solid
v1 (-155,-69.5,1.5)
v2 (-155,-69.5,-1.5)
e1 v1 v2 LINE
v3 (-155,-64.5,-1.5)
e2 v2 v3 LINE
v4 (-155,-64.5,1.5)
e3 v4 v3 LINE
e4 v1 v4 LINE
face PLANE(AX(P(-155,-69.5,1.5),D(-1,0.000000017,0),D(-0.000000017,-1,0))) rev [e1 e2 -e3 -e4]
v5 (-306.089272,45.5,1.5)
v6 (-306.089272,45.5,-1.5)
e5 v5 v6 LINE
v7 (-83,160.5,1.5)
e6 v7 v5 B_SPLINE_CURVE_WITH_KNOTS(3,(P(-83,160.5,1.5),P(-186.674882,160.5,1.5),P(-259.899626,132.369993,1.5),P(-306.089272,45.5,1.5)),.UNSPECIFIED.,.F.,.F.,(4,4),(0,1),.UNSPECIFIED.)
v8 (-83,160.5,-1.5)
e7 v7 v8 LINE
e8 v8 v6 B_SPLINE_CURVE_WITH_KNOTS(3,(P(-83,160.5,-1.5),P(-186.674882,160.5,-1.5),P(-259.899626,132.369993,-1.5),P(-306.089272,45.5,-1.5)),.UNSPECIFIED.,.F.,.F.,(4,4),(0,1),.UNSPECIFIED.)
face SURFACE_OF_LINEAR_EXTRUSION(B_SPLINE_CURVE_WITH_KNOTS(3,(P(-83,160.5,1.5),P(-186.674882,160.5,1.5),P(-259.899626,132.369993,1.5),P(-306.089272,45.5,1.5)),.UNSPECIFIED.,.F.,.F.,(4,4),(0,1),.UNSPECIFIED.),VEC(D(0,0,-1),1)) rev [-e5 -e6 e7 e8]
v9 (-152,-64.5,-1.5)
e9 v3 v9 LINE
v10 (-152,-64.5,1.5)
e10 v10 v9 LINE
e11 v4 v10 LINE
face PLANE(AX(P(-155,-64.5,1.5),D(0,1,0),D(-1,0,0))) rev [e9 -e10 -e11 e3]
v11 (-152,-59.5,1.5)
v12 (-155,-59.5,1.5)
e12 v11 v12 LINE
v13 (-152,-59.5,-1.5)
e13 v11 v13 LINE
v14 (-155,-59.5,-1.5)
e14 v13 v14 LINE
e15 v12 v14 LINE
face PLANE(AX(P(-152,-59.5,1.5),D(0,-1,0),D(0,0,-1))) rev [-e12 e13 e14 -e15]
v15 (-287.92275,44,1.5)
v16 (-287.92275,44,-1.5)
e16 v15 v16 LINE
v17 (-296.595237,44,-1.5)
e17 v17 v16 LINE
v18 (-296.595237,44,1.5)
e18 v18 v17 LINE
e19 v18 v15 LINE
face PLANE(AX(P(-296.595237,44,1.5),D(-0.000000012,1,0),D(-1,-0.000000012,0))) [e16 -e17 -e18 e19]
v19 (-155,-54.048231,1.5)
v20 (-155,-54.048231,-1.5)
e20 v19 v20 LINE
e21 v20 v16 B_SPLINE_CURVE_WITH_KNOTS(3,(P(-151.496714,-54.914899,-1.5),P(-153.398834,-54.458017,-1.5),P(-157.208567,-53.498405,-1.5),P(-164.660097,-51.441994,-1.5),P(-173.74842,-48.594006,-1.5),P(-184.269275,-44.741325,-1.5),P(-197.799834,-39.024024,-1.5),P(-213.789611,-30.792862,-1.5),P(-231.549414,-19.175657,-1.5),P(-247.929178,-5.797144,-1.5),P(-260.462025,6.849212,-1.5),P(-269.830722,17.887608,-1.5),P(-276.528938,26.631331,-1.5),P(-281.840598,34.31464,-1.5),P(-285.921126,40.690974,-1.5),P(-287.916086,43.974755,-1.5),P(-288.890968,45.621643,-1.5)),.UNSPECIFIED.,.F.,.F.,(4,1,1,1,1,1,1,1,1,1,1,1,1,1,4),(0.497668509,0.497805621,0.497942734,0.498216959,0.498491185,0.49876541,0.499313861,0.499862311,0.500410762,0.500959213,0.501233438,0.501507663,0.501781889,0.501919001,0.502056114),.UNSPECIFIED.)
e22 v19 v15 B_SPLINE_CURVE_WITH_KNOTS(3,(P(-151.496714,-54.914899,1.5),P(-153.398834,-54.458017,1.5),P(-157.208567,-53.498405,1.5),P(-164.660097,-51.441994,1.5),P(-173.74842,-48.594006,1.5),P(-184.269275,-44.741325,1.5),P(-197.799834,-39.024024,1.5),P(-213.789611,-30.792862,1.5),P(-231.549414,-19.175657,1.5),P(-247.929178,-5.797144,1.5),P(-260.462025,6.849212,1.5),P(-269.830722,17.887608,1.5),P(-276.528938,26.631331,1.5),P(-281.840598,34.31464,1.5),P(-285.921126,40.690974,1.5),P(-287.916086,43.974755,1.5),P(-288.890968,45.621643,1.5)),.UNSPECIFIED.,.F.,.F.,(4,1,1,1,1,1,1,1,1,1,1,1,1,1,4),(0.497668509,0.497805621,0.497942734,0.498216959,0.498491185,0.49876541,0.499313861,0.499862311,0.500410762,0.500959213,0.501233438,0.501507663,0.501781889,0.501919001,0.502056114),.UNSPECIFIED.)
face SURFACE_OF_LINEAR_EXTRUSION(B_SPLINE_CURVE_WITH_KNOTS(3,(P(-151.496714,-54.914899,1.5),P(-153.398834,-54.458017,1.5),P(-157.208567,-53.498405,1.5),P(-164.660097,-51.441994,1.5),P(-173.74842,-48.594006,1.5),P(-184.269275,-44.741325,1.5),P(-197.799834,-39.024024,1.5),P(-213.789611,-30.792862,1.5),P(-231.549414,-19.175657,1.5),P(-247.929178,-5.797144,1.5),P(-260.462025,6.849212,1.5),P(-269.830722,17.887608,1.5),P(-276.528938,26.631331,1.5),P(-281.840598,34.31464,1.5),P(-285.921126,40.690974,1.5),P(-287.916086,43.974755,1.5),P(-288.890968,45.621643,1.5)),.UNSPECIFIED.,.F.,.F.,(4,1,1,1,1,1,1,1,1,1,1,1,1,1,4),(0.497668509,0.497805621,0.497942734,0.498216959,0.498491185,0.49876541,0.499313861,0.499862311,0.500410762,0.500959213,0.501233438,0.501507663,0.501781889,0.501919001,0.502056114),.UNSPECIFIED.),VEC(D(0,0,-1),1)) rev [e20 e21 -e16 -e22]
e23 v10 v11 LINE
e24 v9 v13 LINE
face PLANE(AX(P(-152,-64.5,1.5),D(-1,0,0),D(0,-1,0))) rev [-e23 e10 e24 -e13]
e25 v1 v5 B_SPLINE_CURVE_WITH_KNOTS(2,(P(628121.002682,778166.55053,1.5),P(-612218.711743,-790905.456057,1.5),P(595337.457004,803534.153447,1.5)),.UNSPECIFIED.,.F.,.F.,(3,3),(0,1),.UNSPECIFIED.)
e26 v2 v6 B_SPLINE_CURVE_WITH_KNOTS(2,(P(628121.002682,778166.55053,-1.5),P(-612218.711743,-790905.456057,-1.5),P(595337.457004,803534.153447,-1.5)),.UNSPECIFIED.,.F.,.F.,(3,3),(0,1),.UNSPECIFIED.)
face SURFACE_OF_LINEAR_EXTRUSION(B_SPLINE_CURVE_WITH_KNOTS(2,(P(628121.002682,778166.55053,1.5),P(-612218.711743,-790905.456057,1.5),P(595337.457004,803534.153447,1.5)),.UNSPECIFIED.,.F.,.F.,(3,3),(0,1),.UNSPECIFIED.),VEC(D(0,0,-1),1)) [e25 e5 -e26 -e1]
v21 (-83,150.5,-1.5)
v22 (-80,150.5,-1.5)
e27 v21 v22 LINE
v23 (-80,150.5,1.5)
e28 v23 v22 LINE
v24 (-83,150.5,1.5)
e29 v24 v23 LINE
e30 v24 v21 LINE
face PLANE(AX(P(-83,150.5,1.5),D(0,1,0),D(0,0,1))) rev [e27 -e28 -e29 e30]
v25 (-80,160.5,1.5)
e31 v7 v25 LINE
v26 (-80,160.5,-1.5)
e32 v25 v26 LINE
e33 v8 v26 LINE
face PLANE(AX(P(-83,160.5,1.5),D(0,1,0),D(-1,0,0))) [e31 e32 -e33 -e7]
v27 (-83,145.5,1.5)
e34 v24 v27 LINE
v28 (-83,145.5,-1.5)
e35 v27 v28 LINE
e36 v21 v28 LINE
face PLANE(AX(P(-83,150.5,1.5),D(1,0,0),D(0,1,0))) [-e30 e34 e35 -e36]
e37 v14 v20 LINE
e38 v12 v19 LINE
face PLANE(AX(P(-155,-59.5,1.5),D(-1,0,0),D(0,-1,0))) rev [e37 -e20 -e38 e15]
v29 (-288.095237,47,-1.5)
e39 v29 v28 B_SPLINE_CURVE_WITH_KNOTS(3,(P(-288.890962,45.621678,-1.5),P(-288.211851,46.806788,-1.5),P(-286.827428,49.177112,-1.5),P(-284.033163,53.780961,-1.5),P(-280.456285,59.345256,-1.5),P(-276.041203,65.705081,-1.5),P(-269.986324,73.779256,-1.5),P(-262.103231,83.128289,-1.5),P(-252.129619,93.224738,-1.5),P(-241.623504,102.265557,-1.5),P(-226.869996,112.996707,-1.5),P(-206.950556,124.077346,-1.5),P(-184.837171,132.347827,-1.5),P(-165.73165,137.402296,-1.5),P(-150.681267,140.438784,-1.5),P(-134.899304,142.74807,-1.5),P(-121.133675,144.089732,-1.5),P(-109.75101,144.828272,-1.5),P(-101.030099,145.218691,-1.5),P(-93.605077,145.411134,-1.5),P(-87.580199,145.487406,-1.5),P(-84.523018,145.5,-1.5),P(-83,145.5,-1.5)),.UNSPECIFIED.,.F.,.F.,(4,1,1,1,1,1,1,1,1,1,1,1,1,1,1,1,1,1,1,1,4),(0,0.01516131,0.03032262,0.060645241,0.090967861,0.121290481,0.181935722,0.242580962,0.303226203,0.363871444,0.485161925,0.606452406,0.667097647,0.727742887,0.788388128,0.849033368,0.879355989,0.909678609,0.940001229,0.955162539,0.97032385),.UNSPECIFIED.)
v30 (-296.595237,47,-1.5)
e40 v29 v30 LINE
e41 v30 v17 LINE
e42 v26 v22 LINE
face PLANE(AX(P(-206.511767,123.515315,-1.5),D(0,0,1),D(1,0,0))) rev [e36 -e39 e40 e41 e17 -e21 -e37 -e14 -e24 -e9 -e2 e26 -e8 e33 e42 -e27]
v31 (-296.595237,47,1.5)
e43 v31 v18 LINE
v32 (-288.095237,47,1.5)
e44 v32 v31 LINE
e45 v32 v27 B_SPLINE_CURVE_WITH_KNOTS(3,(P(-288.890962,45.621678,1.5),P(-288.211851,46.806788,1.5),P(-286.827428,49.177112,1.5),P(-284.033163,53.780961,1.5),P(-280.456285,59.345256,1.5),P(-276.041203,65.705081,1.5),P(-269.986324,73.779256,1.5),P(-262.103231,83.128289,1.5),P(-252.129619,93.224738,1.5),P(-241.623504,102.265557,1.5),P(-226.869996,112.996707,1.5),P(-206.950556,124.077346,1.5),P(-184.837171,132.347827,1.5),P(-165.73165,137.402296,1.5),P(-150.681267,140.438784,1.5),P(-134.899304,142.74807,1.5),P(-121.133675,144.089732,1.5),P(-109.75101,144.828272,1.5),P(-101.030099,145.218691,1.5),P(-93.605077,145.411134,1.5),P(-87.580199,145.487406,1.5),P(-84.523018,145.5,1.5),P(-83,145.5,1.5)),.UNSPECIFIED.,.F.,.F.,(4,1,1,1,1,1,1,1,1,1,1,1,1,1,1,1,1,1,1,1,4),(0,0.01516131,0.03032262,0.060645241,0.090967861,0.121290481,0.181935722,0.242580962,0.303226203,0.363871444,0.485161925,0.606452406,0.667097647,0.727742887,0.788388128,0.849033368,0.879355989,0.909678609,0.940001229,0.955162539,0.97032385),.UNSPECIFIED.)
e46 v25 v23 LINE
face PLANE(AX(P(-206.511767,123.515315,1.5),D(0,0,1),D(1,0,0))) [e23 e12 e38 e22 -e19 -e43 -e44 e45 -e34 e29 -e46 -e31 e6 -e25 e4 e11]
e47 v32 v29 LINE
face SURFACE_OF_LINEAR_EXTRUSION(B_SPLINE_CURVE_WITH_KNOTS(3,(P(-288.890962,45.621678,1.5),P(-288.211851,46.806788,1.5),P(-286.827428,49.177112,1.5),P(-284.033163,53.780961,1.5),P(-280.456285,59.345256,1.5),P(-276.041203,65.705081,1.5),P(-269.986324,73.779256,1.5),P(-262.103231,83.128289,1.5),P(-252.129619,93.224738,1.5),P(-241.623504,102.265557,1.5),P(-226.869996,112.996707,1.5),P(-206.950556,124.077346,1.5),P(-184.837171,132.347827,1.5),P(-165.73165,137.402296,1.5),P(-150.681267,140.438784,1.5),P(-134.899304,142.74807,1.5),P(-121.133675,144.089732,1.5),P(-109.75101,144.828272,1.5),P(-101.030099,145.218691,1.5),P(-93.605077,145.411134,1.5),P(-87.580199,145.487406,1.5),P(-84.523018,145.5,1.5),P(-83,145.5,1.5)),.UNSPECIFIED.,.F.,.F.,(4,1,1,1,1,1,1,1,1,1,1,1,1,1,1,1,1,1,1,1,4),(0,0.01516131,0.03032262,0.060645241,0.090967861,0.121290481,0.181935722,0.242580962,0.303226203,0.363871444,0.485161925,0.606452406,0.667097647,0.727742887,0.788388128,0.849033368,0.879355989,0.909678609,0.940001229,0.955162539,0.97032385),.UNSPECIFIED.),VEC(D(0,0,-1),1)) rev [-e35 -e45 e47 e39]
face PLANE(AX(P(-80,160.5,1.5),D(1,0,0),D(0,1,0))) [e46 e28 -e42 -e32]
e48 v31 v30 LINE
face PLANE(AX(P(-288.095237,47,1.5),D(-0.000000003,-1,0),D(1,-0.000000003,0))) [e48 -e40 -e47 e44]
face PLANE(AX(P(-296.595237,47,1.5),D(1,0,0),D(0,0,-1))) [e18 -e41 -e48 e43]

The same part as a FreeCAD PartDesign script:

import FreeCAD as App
import Part
import Sketcher

V = App.Vector

doc = App.newDocument("Part")
body = doc.addObject("PartDesign::Body", "Body")

# Sketch on XY plane
sketch1 = doc.addObject("Sketcher::SketchObject", "Sketch")
body.addObject(sketch1)
sketch1.AttachmentSupport = (doc.XY_Plane, [""])
sketch1.MapMode = "FlatFace"
sketch1.addGeometry(Part.LineSegment(V(-83, 150.5, 0), V(-80, 150.5, 0)), False)
sketch1.addGeometry(Part.LineSegment(V(-80, 150.5, 0), V(-80, 160.5, 0)), False)
sketch1.addGeometry(Part.LineSegment(V(-80, 160.5, 0), V(-83, 160.5, 0)), False)
sketch1.addGeometry(Part.BSplineCurve([V(-83, 160.5, 0), V(-186.674882, 160.5, 0), V(-259.899626, 132.369993, 0), V(-306.089272, 45.5, 0)], [4, 4], [0, 1], False, 3, [1, 1, 1, 1], False), False)
sketch1.addGeometry(Part.BSplineCurve([V(-155, -69.5, 0), V(-256.223954, -45.186387, 0), V(-306.089272, 45.5, 0)], [3, 3], [0, 1], False, 2, [1, 1, 1], False), False)
sketch1.addGeometry(Part.LineSegment(V(-155, -69.5, 0), V(-155, -64.5, 0)), False)
sketch1.addGeometry(Part.LineSegment(V(-155, -64.5, 0), V(-152, -64.5, 0)), False)
sketch1.addGeometry(Part.LineSegment(V(-152, -64.5, 0), V(-152, -59.5, 0)), False)
sketch1.addGeometry(Part.LineSegment(V(-152, -59.5, 0), V(-155, -59.5, 0)), False)
sketch1.addGeometry(Part.LineSegment(V(-155, -59.5, 0), V(-155, -54.048231, 0)), False)
sketch1.addGeometry(Part.BSplineCurve([V(-155, -54.048231, 0), V(-155.731391, -53.861953, 0), V(-158.353006, -53.18251, 0), V(-164.66008, -51.441937, 0), V(-173.748401, -48.593951, 0), V(-184.269255, -44.741273, 0), V(-197.799811, -39.023974, 0), V(-213.789586, -30.792816, 0), V(-231.549386, -19.175616, 0), V(-247.929148, -5.797108, 0), V(-260.461994, 6.849244, 0), V(-269.83069, 17.887636, 0), V(-276.528905, 26.631356, 0), V(-281.840566, 34.314662, 0), V(-285.585789, 40.16704, 0), V(-287.259112, 42.89802, 0), V(-287.92275, 44, 0)], [4, 1, 1, 1, 1, 1, 1, 1, 1, 1, 1, 1, 1, 1, 4], [0.497752743, 0.497805621, 0.497942734, 0.498216959, 0.498491185, 0.49876541, 0.499313861, 0.499862311, 0.500410762, 0.500959213, 0.501233438, 0.501507663, 0.501781889, 0.501919001, 0.502011047], False, 3, [1, 1, 1, 1, 1, 1, 1, 1, 1, 1, 1, 1, 1, 1, 1, 1, 1], False), False)
sketch1.addGeometry(Part.LineSegment(V(-287.92275, 44, 0), V(-296.595237, 44, 0)), False)
sketch1.addGeometry(Part.LineSegment(V(-296.595237, 44, 0), V(-296.595237, 47, 0)), False)
sketch1.addGeometry(Part.LineSegment(V(-296.595237, 47, 0), V(-288.095237, 47, 0)), False)
sketch1.addGeometry(Part.BSplineCurve([V(-288.095237, 47, 0), V(-287.674256, 47.723773, 0), V(-286.556392, 49.623616, 0), V(-284.033138, 53.780946, 0), V(-280.456261, 59.34524, 0), V(-276.04118, 65.705066, 0), V(-269.986302, 73.779241, 0), V(-262.103211, 83.128274, 0), V(-252.1296, 93.224723, 0), V(-241.623488, 102.265543, 0), V(-226.869982, 112.996694, 0), V(-206.950544, 124.077334, 0), V(-184.837162, 132.347817, 0), V(-165.731643, 137.402288, 0), V(-150.681262, 140.438777, 0), V(-134.8993, 142.748064, 0), V(-121.133672, 144.089728, 0), V(-109.751008, 144.828269, 0), V(-101.030098, 145.21869, 0), V(-93.605076, 145.411133, 0), V(-87.580198, 145.487406, 0), V(-84.523017, 145.5, 0), V(-83, 145.5, 0)], [4, 1, 1, 1, 1, 1, 1, 1, 1, 1, 1, 1, 1, 1, 1, 1, 1, 1, 1, 1, 4], [0.005881872, 0.01516131, 0.03032262, 0.060645241, 0.090967861, 0.121290481, 0.181935722, 0.242580962, 0.303226203, 0.363871444, 0.485161925, 0.606452406, 0.667097647, 0.727742887, 0.788388128, 0.849033368, 0.879355989, 0.909678609, 0.940001229, 0.955162539, 0.97032385], False, 3, [1, 1, 1, 1, 1, 1, 1, 1, 1, 1, 1, 1, 1, 1, 1, 1, 1, 1, 1, 1, 1, 1, 1], False), False)
sketch1.addGeometry(Part.LineSegment(V(-83, 145.5, 0), V(-83, 150.5, 0)), False)
sketch1.addConstraint(Sketcher.Constraint("Block", 3))
sketch1.addConstraint(Sketcher.Constraint("Block", 4))
sketch1.addConstraint(Sketcher.Constraint("Block", 10))
sketch1.addConstraint(Sketcher.Constraint("Block", 14))
sketch1.addConstraint(Sketcher.Constraint("Coincident", 0, 2, 1, 1))
sketch1.addConstraint(Sketcher.Constraint("Coincident", 1, 2, 2, 1))
sketch1.addConstraint(Sketcher.Constraint("Coincident", 2, 2, 3, 1))
sketch1.addConstraint(Sketcher.Constraint("Coincident", 4, 1, 5, 1))
sketch1.addConstraint(Sketcher.Constraint("Coincident", 5, 2, 6, 1))
sketch1.addConstraint(Sketcher.Constraint("Coincident", 6, 2, 7, 1))
sketch1.addConstraint(Sketcher.Constraint("Coincident", 7, 2, 8, 1))
sketch1.addConstraint(Sketcher.Constraint("Coincident", 8, 2, 9, 1))
sketch1.addConstraint(Sketcher.Constraint("Coincident", 9, 2, 10, 1))
sketch1.addConstraint(Sketcher.Constraint("Coincident", 10, 2, 11, 1))
sketch1.addConstraint(Sketcher.Constraint("Coincident", 11, 2, 12, 1))
sketch1.addConstraint(Sketcher.Constraint("Coincident", 12, 2, 13, 1))
sketch1.addConstraint(Sketcher.Constraint("Coincident", 13, 2, 14, 1))
sketch1.addConstraint(Sketcher.Constraint("Coincident", 14, 2, 15, 1))
sketch1.addConstraint(Sketcher.Constraint("Coincident", 15, 2, 0, 1))
sketch1.addConstraint(Sketcher.Constraint("Horizontal", 0))
sketch1.addConstraint(Sketcher.Constraint("Vertical", 1))
sketch1.addConstraint(Sketcher.Constraint("Horizontal", 2))
sketch1.addConstraint(Sketcher.Constraint("Vertical", 5))
sketch1.addConstraint(Sketcher.Constraint("Horizontal", 6))
sketch1.addConstraint(Sketcher.Constraint("Vertical", 7))
sketch1.addConstraint(Sketcher.Constraint("Horizontal", 8))
sketch1.addConstraint(Sketcher.Constraint("Vertical", 9))
sketch1.addConstraint(Sketcher.Constraint("Horizontal", 11))
sketch1.addConstraint(Sketcher.Constraint("Vertical", 12))
sketch1.addConstraint(Sketcher.Constraint("Horizontal", 13))
sketch1.addConstraint(Sketcher.Constraint("Vertical", 15))
sketch1.addConstraint(Sketcher.Constraint("DistanceX", 0, 1, 0, 2, 3.0))
sketch1.addConstraint(Sketcher.Constraint("DistanceX", 6, 1, 6, 2, 3.0))
sketch1.addConstraint(Sketcher.Constraint("DistanceY", 1, 1, 1, 2, 10.0))
sketch1.addConstraint(Sketcher.Constraint("DistanceY", 5, 1, 5, 2, 5.0))
sketch1.addConstraint(Sketcher.Constraint("DistanceY", 7, 1, 7, 2, 5.0))
sketch1.addConstraint(Sketcher.Constraint("DistanceX", 13, 1, 13, 2, 8.5))
pad1 = doc.addObject("PartDesign::Pad", "Pad")
body.addObject(pad1)
pad1.Profile = sketch1
pad1.Length = 3
pad1.Midplane = True

doc.recompute()
